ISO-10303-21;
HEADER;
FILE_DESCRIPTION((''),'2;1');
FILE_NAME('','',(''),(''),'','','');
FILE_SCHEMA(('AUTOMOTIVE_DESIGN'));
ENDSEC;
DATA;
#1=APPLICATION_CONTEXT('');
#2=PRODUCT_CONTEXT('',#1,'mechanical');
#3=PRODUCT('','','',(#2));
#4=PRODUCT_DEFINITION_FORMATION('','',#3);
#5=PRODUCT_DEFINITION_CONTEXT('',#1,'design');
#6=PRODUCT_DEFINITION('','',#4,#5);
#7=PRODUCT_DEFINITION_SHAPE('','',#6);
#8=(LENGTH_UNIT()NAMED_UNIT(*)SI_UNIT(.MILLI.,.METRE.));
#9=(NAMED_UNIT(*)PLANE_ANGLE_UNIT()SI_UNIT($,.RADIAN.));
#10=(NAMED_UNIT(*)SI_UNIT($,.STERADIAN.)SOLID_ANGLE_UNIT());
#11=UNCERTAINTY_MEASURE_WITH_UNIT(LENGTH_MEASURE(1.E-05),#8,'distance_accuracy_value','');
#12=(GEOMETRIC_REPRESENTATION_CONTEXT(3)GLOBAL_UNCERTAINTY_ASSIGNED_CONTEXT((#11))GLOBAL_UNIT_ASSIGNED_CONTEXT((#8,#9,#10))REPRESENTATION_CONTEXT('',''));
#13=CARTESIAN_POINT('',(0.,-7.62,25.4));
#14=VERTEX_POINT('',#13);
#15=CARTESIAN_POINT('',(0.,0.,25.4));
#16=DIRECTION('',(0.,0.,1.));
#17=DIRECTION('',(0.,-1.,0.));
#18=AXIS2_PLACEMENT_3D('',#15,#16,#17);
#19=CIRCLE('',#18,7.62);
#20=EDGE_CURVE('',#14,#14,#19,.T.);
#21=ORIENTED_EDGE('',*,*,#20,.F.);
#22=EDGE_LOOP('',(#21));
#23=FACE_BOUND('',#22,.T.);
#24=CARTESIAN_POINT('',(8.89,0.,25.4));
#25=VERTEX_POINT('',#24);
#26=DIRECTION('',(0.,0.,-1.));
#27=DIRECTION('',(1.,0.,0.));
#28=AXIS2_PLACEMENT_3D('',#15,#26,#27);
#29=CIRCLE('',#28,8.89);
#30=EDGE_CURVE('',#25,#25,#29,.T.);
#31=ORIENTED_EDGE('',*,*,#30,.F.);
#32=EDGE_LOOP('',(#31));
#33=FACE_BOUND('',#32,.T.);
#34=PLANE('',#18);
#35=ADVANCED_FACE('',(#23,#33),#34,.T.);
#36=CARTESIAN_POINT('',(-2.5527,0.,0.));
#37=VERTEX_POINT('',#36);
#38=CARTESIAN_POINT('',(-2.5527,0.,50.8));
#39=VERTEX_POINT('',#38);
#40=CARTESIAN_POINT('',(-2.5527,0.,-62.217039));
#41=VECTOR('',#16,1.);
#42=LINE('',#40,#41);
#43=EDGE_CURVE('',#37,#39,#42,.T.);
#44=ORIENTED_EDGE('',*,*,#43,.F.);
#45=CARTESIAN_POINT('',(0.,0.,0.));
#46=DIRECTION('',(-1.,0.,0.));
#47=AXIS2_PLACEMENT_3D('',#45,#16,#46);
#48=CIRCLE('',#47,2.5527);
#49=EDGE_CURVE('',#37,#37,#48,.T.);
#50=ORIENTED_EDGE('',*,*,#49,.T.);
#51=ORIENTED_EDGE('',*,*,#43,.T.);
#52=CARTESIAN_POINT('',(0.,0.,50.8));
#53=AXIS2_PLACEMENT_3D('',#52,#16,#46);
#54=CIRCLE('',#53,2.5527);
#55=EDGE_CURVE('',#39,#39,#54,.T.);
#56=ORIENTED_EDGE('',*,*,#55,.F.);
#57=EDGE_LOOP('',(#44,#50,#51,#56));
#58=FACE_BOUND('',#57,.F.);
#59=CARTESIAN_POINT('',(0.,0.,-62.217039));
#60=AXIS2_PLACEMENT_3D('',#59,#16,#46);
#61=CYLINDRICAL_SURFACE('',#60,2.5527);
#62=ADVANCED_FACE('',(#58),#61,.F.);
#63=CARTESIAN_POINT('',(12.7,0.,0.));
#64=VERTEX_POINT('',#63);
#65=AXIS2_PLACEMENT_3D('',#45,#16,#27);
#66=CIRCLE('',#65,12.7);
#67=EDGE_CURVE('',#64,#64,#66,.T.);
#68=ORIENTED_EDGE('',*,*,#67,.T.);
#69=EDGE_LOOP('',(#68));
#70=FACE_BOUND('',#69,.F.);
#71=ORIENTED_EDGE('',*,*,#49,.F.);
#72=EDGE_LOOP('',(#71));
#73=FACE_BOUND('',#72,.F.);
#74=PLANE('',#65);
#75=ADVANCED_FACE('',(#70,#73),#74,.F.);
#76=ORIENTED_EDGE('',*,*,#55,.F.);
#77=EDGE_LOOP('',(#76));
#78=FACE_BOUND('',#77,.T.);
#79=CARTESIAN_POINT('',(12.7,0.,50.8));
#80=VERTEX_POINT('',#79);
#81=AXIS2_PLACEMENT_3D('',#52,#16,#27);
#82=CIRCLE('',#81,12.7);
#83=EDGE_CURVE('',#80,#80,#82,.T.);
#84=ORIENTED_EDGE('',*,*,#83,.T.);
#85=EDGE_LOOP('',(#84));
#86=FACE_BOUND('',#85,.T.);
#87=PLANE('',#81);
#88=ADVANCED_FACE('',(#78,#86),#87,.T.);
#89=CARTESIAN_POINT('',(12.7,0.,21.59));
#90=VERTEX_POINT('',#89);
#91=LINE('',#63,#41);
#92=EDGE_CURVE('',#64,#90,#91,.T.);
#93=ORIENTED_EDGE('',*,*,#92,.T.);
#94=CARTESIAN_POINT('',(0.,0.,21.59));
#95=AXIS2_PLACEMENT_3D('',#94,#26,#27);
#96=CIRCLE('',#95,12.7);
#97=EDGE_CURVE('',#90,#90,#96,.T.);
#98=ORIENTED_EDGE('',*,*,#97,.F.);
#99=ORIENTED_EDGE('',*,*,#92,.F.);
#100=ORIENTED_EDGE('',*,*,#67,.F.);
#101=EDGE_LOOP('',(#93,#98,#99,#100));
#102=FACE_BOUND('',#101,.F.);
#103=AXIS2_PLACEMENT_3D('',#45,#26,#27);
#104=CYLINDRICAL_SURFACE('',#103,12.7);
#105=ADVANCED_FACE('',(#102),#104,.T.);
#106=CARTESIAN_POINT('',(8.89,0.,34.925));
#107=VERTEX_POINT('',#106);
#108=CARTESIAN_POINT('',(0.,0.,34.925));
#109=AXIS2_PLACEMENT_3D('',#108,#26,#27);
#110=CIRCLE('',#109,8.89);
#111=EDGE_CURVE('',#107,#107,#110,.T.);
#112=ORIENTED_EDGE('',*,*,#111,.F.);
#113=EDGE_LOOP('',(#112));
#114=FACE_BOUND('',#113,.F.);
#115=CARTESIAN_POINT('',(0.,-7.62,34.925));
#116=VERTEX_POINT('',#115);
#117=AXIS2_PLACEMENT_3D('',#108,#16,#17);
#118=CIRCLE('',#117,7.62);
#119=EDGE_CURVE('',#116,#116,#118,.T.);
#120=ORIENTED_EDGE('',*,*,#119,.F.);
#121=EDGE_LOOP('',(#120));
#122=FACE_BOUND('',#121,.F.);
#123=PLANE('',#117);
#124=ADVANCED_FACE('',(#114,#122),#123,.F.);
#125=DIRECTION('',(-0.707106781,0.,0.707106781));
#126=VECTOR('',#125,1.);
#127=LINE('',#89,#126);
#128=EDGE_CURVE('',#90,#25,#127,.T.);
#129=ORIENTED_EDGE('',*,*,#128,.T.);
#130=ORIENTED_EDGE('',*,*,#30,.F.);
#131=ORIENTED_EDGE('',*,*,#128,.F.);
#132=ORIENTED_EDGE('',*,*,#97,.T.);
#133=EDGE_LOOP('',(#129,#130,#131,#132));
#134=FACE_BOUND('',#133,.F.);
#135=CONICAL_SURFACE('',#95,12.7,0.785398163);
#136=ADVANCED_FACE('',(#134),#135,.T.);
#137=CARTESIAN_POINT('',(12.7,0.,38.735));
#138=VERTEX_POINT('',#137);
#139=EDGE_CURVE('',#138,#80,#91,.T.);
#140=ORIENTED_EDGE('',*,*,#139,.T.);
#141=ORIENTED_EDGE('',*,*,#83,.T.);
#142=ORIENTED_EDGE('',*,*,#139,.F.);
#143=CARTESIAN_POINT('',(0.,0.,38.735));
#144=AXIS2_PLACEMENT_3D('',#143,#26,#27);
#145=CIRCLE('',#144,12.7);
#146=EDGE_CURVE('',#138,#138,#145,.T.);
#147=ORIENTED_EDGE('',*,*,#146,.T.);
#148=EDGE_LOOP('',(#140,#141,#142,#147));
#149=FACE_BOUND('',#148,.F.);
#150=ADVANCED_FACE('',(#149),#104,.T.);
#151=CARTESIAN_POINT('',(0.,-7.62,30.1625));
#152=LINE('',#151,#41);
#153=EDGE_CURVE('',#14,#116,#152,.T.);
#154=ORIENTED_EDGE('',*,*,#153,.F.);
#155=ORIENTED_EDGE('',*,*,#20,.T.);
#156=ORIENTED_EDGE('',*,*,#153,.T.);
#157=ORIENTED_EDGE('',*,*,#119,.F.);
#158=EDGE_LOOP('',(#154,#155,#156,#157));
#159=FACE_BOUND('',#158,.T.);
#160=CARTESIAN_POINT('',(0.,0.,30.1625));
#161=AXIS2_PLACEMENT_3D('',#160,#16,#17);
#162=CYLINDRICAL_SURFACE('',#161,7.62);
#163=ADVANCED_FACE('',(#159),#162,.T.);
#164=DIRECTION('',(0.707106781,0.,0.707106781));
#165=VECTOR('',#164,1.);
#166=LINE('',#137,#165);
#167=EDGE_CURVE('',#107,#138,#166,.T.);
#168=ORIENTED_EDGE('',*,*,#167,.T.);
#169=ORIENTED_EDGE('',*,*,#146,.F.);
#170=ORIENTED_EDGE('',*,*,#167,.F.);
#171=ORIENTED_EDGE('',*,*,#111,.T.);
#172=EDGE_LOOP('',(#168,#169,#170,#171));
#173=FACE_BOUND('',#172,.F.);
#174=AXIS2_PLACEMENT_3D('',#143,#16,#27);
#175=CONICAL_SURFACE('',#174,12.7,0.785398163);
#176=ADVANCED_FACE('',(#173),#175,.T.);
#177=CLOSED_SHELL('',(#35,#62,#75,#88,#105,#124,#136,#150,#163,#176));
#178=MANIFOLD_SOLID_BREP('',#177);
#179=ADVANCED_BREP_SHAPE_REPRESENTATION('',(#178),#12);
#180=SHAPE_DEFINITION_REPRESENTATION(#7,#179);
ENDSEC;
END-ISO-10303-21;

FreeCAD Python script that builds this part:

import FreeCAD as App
import Part
import Sketcher

V = App.Vector
Q = App.Units.Quantity


def edges_at(feature, points):
    """Names of the edges that pass closest to the given points."""
    edges = feature.Shape.Edges
    near = lambda p: min(range(len(edges)), key=lambda i: edges[i].distToShape(Part.Vertex(*p))[0])
    return sorted({f"Edge{near(p) + 1}" for p in points})


def add_polygon(sketch, points):
    """Adds a closed chain of lines whose ends are joined by coincident constraints."""
    first, n = sketch.GeometryCount, len(points)
    for a, b in zip(points, points[1:] + points[:1]):
        sketch.addGeometry(Part.LineSegment(App.Vector(*a, 0), App.Vector(*b, 0)), False)
    for i in range(n):
        sketch.addConstraint(Sketcher.Constraint("Coincident", first + i, 2, first + (i + 1) % n, 1))

doc = App.newDocument("Part")
params = doc.addObject("Spreadsheet::Sheet", "Params")
for row, (alias, value) in enumerate([
    ("sketch1_diameter", "1 in"),
    ("pad1_length", "2 in"),
    ("sketch2_width", "0.2 in"),
    ("sketch2_height", "0.375 in"),
    ("groove_angle", "360 deg"),
    ("chamfer_size", "0.15 in"),
    ("sketch3_diameter", "0.201 in"),
    ("hole_diameter", "0.201 in"),
], start=1):
    params.set(f"A{row}", alias)
    params.set(f"B{row}", "=" + value)
    params.setAlias(f"B{row}", alias)

body = doc.addObject("PartDesign::Body", "Body")

sketch1 = body.newObject("Sketcher::SketchObject", "Sketch")
sketch1.AttachmentSupport = (doc.getObject("XY_Plane"), [""])
sketch1.MapMode = "FlatFace"
sketch1.addGeometry(Part.Circle(V(0, 0, 0), V(0, 0, 1), 13), False)
sketch1.addConstraint(Sketcher.Constraint("Coincident", 0, 3, -1, 1))
sketch1.addConstraint(Sketcher.Constraint("Diameter", 0, Q("1 in")))
sketch1.setExpression("Constraints[1]", "Params.sketch1_diameter")
pad1 = body.newObject("PartDesign::Pad", "Pad")
pad1.Profile = sketch1
pad1.setExpression("Length", "Params.pad1_length")

sketch2 = body.newObject("Sketcher::SketchObject", "Sketch001")
sketch2.AttachmentSupport = (doc.getObject("YZ_Plane"), [""])
sketch2.MapMode = "FlatFace"
add_polygon(sketch2, [(-13, 35), (-13, 25), (-8, 25), (-8, 35)])
sketch2.addConstraint(Sketcher.Constraint("Vertical", 0))
sketch2.addConstraint(Sketcher.Constraint("Horizontal", 1))
sketch2.addConstraint(Sketcher.Constraint("Vertical", 2))
sketch2.addConstraint(Sketcher.Constraint("Horizontal", 3))
sketch2.addConstraint(Sketcher.Constraint("DistanceX", 1, 1, 1, 2, Q("0.2 in")))
sketch2.addConstraint(Sketcher.Constraint("DistanceY", -1, 1, 0, 2, Q("1 in")))
sketch2.addConstraint(Sketcher.Constraint("DistanceX", 0, 2, -1, 1, Q("0.5 in")))
sketch2.addConstraint(Sketcher.Constraint("DistanceY", 0, 2, 0, 1, Q("0.375 in")))
sketch2.setExpression("Constraints[8]", "Params.sketch2_width")
sketch2.setExpression("Constraints[11]", "Params.sketch2_height")
groove = body.newObject("PartDesign::Groove", "Groove")
groove.Profile = sketch2
groove.ReferenceAxis = (sketch2, ["V_Axis"])
groove.setExpression("Angle", "Params.groove_angle")
doc.recompute()

chamfer = body.newObject("PartDesign::Chamfer", "Chamfer")
chamfer.Base = (groove, edges_at(groove, [(-12.7, 0, 34.925), (-12.7, 0, 25.4)]))
chamfer.setExpression("Size", "Params.chamfer_size")

sketch3 = body.newObject("Sketcher::SketchObject", "Sketch002")
sketch3.AttachmentSupport = (doc.getObject("XY_Plane"), [""])
sketch3.MapMode = "FlatFace"
sketch3.addGeometry(Part.Circle(V(0, 0, 0), V(0, 0, 1), 2.6), False)
sketch3.addConstraint(Sketcher.Constraint("Coincident", 0, 3, -1, 1))
sketch3.addConstraint(Sketcher.Constraint("Diameter", 0, Q("0.201 in")))
sketch3.setExpression("Constraints[1]", "Params.sketch3_diameter")
doc.recompute()
hole = body.newObject("PartDesign::Hole", "Hole")
hole.Profile = sketch3
hole.ThreadType = "None"
hole.setExpression("Diameter", "Params.hole_diameter")
hole.DepthType = "ThroughAll"
hole.Reversed = True

doc.recompute()
